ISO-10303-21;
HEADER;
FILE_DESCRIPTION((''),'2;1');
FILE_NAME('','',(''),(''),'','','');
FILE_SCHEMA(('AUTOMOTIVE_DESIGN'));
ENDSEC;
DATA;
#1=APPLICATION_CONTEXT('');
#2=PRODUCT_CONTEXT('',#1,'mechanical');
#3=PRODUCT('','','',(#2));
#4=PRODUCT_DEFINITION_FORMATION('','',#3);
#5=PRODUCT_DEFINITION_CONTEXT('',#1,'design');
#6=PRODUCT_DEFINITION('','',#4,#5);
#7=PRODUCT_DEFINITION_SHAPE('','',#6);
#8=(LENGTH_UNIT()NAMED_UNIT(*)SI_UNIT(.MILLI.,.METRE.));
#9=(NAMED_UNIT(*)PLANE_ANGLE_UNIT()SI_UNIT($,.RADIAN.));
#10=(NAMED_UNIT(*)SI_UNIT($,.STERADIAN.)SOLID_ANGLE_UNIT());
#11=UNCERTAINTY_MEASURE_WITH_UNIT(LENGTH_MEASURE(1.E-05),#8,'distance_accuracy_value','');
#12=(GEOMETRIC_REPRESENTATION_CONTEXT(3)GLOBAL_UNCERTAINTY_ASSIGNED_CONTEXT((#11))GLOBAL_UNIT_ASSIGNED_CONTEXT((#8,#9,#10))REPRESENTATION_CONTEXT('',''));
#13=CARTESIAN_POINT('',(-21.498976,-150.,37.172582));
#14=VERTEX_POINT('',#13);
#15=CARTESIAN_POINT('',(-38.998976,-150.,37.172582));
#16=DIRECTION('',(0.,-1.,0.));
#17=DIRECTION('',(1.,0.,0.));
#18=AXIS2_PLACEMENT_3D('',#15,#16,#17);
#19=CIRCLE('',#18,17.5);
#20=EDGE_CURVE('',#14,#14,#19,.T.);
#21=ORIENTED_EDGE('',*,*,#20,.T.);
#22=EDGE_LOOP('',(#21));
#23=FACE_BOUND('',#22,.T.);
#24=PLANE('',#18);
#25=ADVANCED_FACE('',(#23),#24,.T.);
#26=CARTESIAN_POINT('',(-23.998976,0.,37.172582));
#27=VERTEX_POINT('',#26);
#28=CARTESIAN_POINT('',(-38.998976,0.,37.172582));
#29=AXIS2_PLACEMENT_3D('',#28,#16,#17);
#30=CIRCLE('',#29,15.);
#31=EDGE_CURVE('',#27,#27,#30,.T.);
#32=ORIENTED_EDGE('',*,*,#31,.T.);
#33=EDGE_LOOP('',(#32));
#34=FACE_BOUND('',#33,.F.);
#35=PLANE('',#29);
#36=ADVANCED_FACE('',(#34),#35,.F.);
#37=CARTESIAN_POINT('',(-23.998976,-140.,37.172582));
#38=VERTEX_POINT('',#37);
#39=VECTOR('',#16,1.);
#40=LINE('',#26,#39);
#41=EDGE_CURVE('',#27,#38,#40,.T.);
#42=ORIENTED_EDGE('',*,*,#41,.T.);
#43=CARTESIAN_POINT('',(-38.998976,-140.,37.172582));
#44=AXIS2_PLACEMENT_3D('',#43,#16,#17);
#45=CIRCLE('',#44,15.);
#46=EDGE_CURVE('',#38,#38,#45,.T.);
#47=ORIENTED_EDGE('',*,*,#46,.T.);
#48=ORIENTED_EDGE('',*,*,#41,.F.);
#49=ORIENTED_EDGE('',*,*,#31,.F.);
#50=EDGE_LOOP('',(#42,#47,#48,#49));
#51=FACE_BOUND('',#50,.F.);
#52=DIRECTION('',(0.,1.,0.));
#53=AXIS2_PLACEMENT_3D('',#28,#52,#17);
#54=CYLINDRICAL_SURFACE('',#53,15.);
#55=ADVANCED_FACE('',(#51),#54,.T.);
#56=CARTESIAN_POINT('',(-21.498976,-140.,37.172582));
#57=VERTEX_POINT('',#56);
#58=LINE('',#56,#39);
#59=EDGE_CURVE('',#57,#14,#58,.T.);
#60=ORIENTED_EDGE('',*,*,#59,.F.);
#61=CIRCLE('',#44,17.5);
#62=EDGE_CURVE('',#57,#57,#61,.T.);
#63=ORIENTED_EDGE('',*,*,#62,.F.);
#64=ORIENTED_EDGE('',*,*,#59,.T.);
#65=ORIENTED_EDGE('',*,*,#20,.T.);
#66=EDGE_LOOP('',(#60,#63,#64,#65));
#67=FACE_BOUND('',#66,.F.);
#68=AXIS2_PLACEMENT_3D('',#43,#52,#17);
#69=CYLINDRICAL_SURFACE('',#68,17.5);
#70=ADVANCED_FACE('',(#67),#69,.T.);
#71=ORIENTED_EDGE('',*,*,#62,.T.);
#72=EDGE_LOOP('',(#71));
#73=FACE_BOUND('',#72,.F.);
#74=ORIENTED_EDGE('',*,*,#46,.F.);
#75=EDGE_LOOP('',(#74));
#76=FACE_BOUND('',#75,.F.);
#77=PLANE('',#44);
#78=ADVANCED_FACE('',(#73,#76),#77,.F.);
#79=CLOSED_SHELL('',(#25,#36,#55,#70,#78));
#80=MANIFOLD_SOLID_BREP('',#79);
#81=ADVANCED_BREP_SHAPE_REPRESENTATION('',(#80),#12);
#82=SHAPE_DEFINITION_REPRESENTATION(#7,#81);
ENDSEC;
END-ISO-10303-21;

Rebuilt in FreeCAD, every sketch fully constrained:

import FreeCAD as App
import Part
import Sketcher

doc = App.newDocument("Part")
body = doc.addObject("PartDesign::Body", "Body")

# Sketch on XZ plane
sketch1 = body.newObject("Sketcher::SketchObject", "Sketch")
sketch1.AttachmentSupport = (doc.getObject("XZ_Plane"), [""])
sketch1.MapMode = "FlatFace"
sketch1.addGeometry(Part.Circle(App.Vector(-39, 37, 0), App.Vector(0, 0, 1), 15), False)
sketch1.addConstraint([
    Sketcher.Constraint("Diameter", 0, 30.0),
    Sketcher.Constraint("DistanceX", 0, 3, -1, 1, 38.998976),
    Sketcher.Constraint("DistanceY", -1, 1, 0, 3, 37.172582),
])
pad1 = body.newObject("PartDesign::Pad", "Pad")
pad1.Profile = sketch1
pad1.Length = 140

# Sketch on XZ plane
sketch2 = body.newObject("Sketcher::SketchObject", "Sketch001")
sketch2.AttachmentSupport = (doc.getObject("XZ_Plane"), [""])
sketch2.MapMode = "FlatFace"
sketch2.AttachmentOffset = App.Placement(App.Vector(0, 0, 140), App.Rotation())
sketch2.addGeometry(Part.Circle(App.Vector(-39, 37, 0), App.Vector(0, 0, 1), 18), False)
sketch2.addConstraint([
    Sketcher.Constraint("Diameter", 0, 35.0),
    Sketcher.Constraint("DistanceX", 0, 3, -1, 1, 38.998976),
    Sketcher.Constraint("DistanceY", -1, 1, 0, 3, 37.172582),
])
pad2 = body.newObject("PartDesign::Pad", "Pad001")
pad2.Profile = sketch2
pad2.Length = 10

doc.recompute()
